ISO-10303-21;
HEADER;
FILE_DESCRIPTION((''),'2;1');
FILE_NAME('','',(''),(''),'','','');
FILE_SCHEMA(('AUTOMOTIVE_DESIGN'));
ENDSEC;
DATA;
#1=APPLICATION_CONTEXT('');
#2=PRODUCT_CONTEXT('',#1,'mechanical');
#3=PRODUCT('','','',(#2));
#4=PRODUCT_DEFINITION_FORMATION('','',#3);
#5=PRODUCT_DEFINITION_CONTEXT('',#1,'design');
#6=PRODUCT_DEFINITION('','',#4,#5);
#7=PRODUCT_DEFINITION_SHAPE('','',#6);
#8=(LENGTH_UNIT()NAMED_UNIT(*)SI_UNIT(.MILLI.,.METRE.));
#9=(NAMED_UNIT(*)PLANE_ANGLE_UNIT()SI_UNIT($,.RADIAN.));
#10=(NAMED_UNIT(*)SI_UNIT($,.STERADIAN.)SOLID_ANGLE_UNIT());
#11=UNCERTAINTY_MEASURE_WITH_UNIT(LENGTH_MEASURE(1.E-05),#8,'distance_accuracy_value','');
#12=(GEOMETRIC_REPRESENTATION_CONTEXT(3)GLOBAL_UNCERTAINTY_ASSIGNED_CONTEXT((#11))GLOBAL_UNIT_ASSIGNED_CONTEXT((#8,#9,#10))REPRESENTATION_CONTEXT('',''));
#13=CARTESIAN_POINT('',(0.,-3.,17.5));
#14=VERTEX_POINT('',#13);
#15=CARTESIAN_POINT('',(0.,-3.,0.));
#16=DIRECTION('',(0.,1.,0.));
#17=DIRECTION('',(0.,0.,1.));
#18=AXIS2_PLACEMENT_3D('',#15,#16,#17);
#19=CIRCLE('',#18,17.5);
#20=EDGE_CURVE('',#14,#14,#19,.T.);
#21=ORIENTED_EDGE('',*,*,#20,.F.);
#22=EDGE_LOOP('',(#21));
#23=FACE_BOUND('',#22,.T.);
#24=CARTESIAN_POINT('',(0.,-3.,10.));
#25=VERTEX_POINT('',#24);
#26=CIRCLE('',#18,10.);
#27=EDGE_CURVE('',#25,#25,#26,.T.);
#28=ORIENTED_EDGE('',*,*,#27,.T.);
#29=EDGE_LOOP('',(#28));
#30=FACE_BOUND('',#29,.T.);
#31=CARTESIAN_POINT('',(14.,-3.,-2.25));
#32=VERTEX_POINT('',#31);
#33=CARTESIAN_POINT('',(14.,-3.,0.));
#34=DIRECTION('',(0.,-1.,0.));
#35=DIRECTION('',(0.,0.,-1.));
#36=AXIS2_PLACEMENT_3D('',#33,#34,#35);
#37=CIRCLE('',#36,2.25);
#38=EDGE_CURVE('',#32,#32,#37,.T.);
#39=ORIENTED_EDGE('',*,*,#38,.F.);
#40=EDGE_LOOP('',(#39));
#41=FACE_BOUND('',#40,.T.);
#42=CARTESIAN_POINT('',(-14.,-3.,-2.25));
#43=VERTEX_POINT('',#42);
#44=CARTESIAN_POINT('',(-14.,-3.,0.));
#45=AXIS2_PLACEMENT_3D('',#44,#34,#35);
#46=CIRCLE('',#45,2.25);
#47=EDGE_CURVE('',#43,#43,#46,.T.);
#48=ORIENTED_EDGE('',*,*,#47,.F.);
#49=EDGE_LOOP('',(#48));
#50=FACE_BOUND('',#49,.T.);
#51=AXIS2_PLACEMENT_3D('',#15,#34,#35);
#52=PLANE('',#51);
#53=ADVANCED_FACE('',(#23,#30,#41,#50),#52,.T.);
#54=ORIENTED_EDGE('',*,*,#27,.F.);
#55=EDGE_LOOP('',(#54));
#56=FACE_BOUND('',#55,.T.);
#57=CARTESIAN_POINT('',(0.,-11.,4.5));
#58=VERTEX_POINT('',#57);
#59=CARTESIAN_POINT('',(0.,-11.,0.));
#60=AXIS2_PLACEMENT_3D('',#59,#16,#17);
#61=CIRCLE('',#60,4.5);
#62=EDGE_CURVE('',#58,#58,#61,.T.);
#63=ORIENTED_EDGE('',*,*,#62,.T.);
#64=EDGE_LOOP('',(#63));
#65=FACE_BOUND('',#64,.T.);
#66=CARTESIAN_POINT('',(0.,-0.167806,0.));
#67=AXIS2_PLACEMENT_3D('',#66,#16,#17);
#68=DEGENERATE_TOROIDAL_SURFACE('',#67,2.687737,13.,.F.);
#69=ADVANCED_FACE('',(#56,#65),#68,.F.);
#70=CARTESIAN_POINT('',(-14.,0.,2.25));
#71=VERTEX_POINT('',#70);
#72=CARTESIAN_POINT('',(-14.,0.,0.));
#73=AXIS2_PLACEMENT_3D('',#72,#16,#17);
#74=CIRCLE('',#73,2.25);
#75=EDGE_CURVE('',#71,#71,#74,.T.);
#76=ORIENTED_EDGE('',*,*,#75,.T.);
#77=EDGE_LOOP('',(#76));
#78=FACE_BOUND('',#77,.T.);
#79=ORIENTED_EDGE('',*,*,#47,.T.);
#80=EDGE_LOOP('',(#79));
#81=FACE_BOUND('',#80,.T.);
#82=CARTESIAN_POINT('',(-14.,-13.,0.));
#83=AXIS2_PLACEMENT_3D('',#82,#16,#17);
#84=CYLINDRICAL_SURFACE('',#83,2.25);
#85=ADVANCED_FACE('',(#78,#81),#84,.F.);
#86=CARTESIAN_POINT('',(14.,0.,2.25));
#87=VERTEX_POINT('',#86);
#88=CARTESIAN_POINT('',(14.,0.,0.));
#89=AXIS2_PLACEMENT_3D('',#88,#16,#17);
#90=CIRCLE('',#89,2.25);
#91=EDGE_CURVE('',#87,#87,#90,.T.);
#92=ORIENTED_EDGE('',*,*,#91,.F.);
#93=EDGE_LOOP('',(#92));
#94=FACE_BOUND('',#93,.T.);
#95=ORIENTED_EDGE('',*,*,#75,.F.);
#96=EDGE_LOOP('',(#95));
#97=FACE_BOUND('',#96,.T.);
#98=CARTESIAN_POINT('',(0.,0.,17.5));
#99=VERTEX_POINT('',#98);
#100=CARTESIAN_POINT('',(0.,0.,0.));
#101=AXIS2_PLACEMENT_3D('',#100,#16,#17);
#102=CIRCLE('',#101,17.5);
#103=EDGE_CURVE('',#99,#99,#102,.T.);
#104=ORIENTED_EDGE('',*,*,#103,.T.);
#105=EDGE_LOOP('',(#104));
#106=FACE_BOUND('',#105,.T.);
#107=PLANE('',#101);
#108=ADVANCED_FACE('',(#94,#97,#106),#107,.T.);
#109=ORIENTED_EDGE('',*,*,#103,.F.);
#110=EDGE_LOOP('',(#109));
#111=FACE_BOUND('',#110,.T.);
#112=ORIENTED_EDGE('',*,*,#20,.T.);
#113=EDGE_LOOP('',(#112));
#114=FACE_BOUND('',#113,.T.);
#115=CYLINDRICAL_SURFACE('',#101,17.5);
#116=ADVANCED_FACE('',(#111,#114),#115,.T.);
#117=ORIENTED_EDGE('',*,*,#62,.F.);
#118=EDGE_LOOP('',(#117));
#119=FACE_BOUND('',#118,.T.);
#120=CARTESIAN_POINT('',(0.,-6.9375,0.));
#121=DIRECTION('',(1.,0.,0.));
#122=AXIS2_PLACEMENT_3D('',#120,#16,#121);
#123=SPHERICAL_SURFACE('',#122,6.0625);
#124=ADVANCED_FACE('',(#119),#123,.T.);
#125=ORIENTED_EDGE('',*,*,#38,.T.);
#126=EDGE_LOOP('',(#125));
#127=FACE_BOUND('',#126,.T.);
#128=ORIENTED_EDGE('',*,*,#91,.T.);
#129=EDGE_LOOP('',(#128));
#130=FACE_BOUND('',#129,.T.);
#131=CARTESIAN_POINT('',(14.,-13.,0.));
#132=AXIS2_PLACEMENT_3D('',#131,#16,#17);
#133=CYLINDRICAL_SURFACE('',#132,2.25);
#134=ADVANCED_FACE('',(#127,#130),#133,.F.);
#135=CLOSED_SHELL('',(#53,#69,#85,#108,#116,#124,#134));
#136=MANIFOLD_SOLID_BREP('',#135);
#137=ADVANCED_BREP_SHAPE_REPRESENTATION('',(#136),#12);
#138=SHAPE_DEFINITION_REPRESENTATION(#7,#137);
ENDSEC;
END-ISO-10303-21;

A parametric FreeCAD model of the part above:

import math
import FreeCAD as App
import Part
import Sketcher
from FreeCAD import Vector
Q = App.Units.Quantity

doc = App.newDocument("Part")
body = doc.addObject("PartDesign::Body", "Body")

# Sketch on XY plane
sketch1 = body.newObject("Sketcher::SketchObject", "Sketch")
sketch1.AttachmentSupport = (doc.getObject("XY_Plane"), [""])
sketch1.MapMode = "FlatFace"
sketch1.addGeometry(Part.ArcOfCircle(Part.Circle(Vector(0, -6.9, 0), Vector(0, 0, 1), 6.1), math.radians(-90), math.radians(-42)), False)
sketch1.addGeometry(Part.ArcOfCircle(Part.Circle(Vector(-2.7, -0.2, 0), Vector(0, 0, 1), 13), math.radians(-56), math.radians(-13)), False)
sketch1.addGeometry(Part.LineSegment(Vector(10, -3, 0), Vector(17.5, -3, 0)), False)
sketch1.addGeometry(Part.LineSegment(Vector(17.5, -3, 0), Vector(17.5, 0, 0)), False)
sketch1.addGeometry(Part.LineSegment(Vector(17.5, 0, 0), Vector(0, 0, 0)), False)
sketch1.addGeometry(Part.LineSegment(Vector(0, 0, 0), Vector(0, -13, 0)), False)
sketch1.addConstraint(Sketcher.Constraint("Coincident", 0, 2, 1, 1))
sketch1.addConstraint(Sketcher.Constraint("Coincident", 1, 2, 2, 1))
sketch1.addConstraint(Sketcher.Constraint("Coincident", 2, 2, 3, 1))
sketch1.addConstraint(Sketcher.Constraint("Coincident", 3, 2, 4, 1))
sketch1.addConstraint(Sketcher.Constraint("Coincident", 4, 2, 5, 1))
sketch1.addConstraint(Sketcher.Constraint("Coincident", 5, 2, 0, 1))
sketch1.addConstraint(Sketcher.Constraint("Horizontal", 2))
sketch1.addConstraint(Sketcher.Constraint("Vertical", 3))
sketch1.addConstraint(Sketcher.Constraint("Horizontal", 4))
sketch1.addConstraint(Sketcher.Constraint("Vertical", 5))
sketch1.addConstraint(Sketcher.Constraint("Coincident", 4, 2, -1, 1))
sketch1.addConstraint(Sketcher.Constraint("PointOnObject", 0, 3, -2))
sketch1.addConstraint(Sketcher.Constraint("Radius", 1, Q("13 mm")))
sketch1.addConstraint(Sketcher.Constraint("DistanceY", 3, 1, 3, 2, Q("3 mm")))
sketch1.addConstraint(Sketcher.Constraint("DistanceY", 5, 2, 5, 1, Q("13 mm")))
sketch1.addConstraint(Sketcher.Constraint("DistanceX", 2, 1, 2, 2, Q("7.5 mm")))
sketch1.addConstraint(Sketcher.Constraint("DistanceX", 4, 2, 4, 1, Q("17.5 mm")))
sketch1.addConstraint(Sketcher.Constraint("DistanceY", 0, 2, -1, 1, Q("11 mm")))
sketch1.addConstraint(Sketcher.Constraint("DistanceX", 0, 2, 2, 2, Q("13 mm")))
revolution = body.newObject("PartDesign::Revolution", "Revolution")
revolution.Profile = sketch1
revolution.ReferenceAxis = (sketch1, ["V_Axis"])
revolution.Angle = 360

# Sketch on XZ plane
sketch2 = body.newObject("Sketcher::SketchObject", "Sketch001")
sketch2.AttachmentSupport = (doc.getObject("XZ_Plane"), [""])
sketch2.MapMode = "FlatFace"
sketch2.addGeometry(Part.Circle(Vector(14, 0, 0), Vector(0, 0, 1), 2.2), False)
sketch2.addGeometry(Part.Circle(Vector(-14, 0, 0), Vector(0, 0, 1), 2.2), False)
sketch2.addConstraint(Sketcher.Constraint("Equal", 0, 1))
sketch2.addConstraint(Sketcher.Constraint("Symmetric", 0, 3, 1, 3, -1, 1))
sketch2.addConstraint(Sketcher.Constraint("PointOnObject", 0, 3, -1))
sketch2.addConstraint(Sketcher.Constraint("Diameter", 0, Q("4.5 mm")))
sketch2.addConstraint(Sketcher.Constraint("DistanceX", -1, 1, 0, 3, Q("14 mm")))
pocket1 = body.newObject("PartDesign::Pocket", "Pocket")
pocket1.Profile = sketch2
pocket1.Type = "ThroughAll"
pocket1.Reversed = True

doc.recompute()
